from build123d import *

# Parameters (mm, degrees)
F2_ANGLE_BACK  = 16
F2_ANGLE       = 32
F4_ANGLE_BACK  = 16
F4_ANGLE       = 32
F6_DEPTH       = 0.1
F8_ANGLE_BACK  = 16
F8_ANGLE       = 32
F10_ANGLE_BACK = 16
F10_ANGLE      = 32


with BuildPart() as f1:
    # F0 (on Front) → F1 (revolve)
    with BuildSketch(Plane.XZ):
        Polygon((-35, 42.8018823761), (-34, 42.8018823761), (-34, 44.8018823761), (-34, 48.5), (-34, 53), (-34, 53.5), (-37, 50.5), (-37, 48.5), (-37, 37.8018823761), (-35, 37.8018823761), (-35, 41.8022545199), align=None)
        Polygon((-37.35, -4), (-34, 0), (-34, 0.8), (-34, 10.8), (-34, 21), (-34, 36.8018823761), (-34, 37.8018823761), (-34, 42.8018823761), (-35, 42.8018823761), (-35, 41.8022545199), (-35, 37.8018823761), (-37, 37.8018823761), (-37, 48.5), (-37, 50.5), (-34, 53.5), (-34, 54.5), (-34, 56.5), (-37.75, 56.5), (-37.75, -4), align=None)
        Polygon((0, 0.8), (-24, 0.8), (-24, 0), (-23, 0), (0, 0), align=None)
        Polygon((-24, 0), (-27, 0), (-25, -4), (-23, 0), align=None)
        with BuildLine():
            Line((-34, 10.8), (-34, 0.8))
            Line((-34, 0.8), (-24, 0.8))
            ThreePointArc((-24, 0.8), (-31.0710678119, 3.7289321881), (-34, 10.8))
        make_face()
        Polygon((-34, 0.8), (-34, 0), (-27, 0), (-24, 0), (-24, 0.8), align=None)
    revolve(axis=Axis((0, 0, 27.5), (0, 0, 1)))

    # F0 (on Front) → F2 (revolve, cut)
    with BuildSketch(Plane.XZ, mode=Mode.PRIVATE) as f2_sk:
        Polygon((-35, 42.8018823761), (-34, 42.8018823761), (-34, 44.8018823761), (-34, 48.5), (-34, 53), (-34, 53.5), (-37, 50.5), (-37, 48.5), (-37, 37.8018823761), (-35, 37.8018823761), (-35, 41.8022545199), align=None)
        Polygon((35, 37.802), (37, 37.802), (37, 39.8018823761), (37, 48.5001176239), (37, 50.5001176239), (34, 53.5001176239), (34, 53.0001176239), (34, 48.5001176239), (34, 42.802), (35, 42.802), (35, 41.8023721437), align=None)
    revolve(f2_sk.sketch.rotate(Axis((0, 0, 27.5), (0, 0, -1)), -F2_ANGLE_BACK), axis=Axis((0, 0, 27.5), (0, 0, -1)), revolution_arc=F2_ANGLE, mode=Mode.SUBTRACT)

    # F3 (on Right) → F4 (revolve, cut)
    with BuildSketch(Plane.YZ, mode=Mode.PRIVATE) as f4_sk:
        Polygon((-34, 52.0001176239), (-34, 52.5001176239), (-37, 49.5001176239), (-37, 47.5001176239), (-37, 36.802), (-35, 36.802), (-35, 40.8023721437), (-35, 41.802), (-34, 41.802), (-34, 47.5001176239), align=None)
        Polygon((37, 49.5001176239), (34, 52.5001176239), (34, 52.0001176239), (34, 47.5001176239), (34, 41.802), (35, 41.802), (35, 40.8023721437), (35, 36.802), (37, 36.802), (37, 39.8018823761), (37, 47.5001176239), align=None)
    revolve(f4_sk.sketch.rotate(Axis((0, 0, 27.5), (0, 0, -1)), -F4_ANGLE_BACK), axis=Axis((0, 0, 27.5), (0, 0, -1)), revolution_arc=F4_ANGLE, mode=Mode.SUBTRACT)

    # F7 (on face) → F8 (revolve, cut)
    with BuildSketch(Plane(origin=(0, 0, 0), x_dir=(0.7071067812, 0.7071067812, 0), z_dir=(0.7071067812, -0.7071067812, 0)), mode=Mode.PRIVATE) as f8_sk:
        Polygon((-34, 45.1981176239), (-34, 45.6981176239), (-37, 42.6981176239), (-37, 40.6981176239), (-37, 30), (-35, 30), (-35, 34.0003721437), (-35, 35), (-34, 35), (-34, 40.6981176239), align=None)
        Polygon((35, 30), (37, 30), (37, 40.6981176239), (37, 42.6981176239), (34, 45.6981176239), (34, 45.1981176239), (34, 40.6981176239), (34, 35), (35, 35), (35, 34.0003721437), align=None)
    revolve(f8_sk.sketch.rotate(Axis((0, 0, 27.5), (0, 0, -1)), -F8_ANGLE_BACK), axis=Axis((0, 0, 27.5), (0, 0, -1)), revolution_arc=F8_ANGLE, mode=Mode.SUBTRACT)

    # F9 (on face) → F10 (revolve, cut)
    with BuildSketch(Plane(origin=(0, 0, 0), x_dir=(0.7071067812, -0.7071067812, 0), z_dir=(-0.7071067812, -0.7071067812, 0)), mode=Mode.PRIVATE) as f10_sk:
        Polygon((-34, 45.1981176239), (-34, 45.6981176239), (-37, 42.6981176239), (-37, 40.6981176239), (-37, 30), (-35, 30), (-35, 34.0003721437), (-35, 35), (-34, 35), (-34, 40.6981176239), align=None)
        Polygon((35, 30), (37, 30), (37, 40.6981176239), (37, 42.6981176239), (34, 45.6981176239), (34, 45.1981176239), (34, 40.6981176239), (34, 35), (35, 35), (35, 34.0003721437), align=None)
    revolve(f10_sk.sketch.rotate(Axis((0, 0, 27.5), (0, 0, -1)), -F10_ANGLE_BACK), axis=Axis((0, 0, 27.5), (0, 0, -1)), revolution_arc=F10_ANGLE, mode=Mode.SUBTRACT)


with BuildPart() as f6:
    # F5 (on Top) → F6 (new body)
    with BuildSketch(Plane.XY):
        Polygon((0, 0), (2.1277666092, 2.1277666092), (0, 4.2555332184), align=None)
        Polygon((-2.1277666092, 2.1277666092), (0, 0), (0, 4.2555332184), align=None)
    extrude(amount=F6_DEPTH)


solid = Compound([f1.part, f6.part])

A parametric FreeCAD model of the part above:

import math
import FreeCAD as App
import Part
import Sketcher

V = App.Vector
Q = App.Units.Quantity


def add_polygon(sketch, points):
    """Adds a closed chain of lines whose ends are joined by coincident constraints."""
    first, n = sketch.GeometryCount, len(points)
    for a, b in zip(points, points[1:] + points[:1]):
        sketch.addGeometry(Part.LineSegment(App.Vector(*a, 0), App.Vector(*b, 0)), False)
    for i in range(n):
        sketch.addConstraint(Sketcher.Constraint("Coincident", first + i, 2, first + (i + 1) % n, 1))

doc = App.newDocument("Part")
body = doc.addObject("PartDesign::Body", "Body")

sketch1 = body.newObject("Sketcher::SketchObject", "Sketch")
sketch1.AttachmentSupport = (doc.getObject("XZ_Plane"), [""])
sketch1.MapMode = "FlatFace"
sketch1.addGeometry([
    Part.LineSegment(V(-34, 56.5, 0), V(-37.75, 56.5, 0)),
    Part.LineSegment(V(-37.75, 56.5, 0), V(-37.75, -4, 0)),
    Part.LineSegment(V(-37.75, -4, 0), V(-37.35, -4, 0)),
    Part.LineSegment(V(-37.35, -4, 0), V(-34, 0, 0)),
    Part.LineSegment(V(-34, 0, 0), V(-27, 0, 0)),
    Part.LineSegment(V(-27, 0, 0), V(-25, -4, 0)),
    Part.LineSegment(V(-25, -4, 0), V(-23, 0, 0)),
    Part.LineSegment(V(-23, 0, 0), V(0, 0, 0)),
    Part.LineSegment(V(0, 0, 0), V(0, 0.8, 0)),
    Part.LineSegment(V(0, 0.8, 0), V(-24, 0.8, 0)),
    Part.ArcOfCircle(Part.Circle(V(-24, 10.8, 0), V(0, 0, 1), 10), math.radians(180), math.radians(270)),
    Part.LineSegment(V(-34, 10.8, 0), V(-34, 56.5, 0)),
], False)
sketch1.addConstraint([
    Sketcher.Constraint("Coincident", 0, 2, 1, 1),
    Sketcher.Constraint("Coincident", 1, 2, 2, 1),
    Sketcher.Constraint("Coincident", 2, 2, 3, 1),
    Sketcher.Constraint("Coincident", 3, 2, 4, 1),
    Sketcher.Constraint("Coincident", 4, 2, 5, 1),
    Sketcher.Constraint("Coincident", 5, 2, 6, 1),
    Sketcher.Constraint("Coincident", 6, 2, 7, 1),
    Sketcher.Constraint("Coincident", 7, 2, 8, 1),
    Sketcher.Constraint("Coincident", 8, 2, 9, 1),
    Sketcher.Constraint("Tangent", 9, 2, 10, 2),
    Sketcher.Constraint("Tangent", 10, 1, 11, 1),
    Sketcher.Constraint("Coincident", 11, 2, 0, 1),
    Sketcher.Constraint("Horizontal", 0),
    Sketcher.Constraint("Vertical", 1),
    Sketcher.Constraint("Horizontal", 2),
    Sketcher.Constraint("Horizontal", 4),
    Sketcher.Constraint("Horizontal", 7),
    Sketcher.Constraint("Vertical", 8),
    Sketcher.Constraint("Horizontal", 9),
    Sketcher.Constraint("Vertical", 11),
    Sketcher.Constraint("Coincident", 7, 2, -1, 1),
    Sketcher.Constraint("PointOnObject", 3, 2, -1),
    Sketcher.Constraint("Horizontal", 2, 2, 5, 2),
    Sketcher.Constraint("Vertical", 3, 2, 10, 1),
    Sketcher.Constraint("Equal", 5, 6),
    Sketcher.Constraint("Radius", 10, Q("10 mm")),
    Sketcher.Constraint("DistanceX", 4, 1, 4, 2, Q("7 mm")),
    Sketcher.Constraint("DistanceX", 7, 1, 7, 2, Q("23 mm")),
    Sketcher.Constraint("DistanceX", 9, 2, 9, 1, Q("24 mm")),
    Sketcher.Constraint("DistanceX", 2, 1, 2, 2, Q("0.4 mm")),
    Sketcher.Constraint("DistanceY", 1, 2, 1, 1, Q("60.5 mm")),
    Sketcher.Constraint("DistanceY", 8, 1, 8, 2, Q("0.8 mm")),
    Sketcher.Constraint("DistanceY", 11, 1, 11, 2, Q("45.7 mm")),
    Sketcher.Constraint("DistanceX", 0, 2, 0, 1, Q("3.75 mm")),
])
revolution = body.newObject("PartDesign::Revolution", "Revolution")
revolution.Profile = sketch1
revolution.ReferenceAxis = (sketch1, ["V_Axis"])
revolution.Angle = 360

sketch2 = body.newObject("Sketcher::SketchObject", "Sketch001")
sketch2.Placement = App.Placement(V(0, 0, 0), App.Rotation(V(0.961261696, 0.275637356, 0), V(0, 0, 1), V(0.275637356, -0.961261696, 0), "ZXY"))
add_polygon(sketch2, [(-35, 42.8), (-34, 42.8), (-34, 53.5), (-37, 50.5), (-37, 37.8), (-35, 37.8)])
add_polygon(sketch2, [(35, 37.8), (37, 37.8), (37, 50.5), (34, 53.5), (34, 42.8), (35, 42.8)])
sketch2.addConstraint([
    Sketcher.Constraint("Horizontal", 0),
    Sketcher.Constraint("Vertical", 1),
    Sketcher.Constraint("Vertical", 3),
    Sketcher.Constraint("Horizontal", 4),
    Sketcher.Constraint("Vertical", 5),
    Sketcher.Constraint("Horizontal", 6),
    Sketcher.Constraint("Vertical", 7),
    Sketcher.Constraint("Vertical", 9),
    Sketcher.Constraint("Horizontal", 10),
    Sketcher.Constraint("Vertical", 11),
    Sketcher.Constraint("Perpendicular", 2, 8),
    Sketcher.Constraint("Equal", 4, 6),
    Sketcher.Constraint("Equal", 0, 10),
    Sketcher.Constraint("Equal", 3, 7),
    Sketcher.Constraint("Equal", 1, 9),
    Sketcher.Constraint("Equal", 5, 11),
    Sketcher.Constraint("DistanceX", 0, 1, 0, 2, Q("1 mm")),
    Sketcher.Constraint("DistanceX", 4, 1, 4, 2, Q("2 mm")),
    Sketcher.Constraint("DistanceY", 5, 1, 5, 2, Q("5 mm")),
    Sketcher.Constraint("DistanceX", 0, 2, -1, 1, Q("34 mm")),
    Sketcher.Constraint("DistanceX", -1, 1, 6, 2, Q("37 mm")),
    Sketcher.Constraint("DistanceY", -1, 1, 1, 2, Q("53.5 mm")),
    Sketcher.Constraint("DistanceY", -1, 1, 6, 2, Q("37.802 mm")),
    Sketcher.Constraint("DistanceY", 1, 1, 1, 2, Q("10.698118 mm")),
])
groove = body.newObject("PartDesign::Groove", "Groove")
groove.Profile = sketch2
groove.ReferenceAxis = (sketch2, ["V_Axis"])
groove.Angle = 32
groove.Reversed = True

sketch3 = body.newObject("Sketcher::SketchObject", "Sketch002")
sketch3.Placement = App.Placement(V(0, 0, 0), App.Rotation(V(-0.275637356, 0.961261696, 0), V(0, 0, 1), V(0.961261696, 0.275637356, 0), "ZXY"))
add_polygon(sketch3, [(-34, 52.5), (-37, 49.5), (-37, 36.8), (-35, 36.8), (-35, 41.8), (-34, 41.8)])
add_polygon(sketch3, [(37, 49.5), (34, 52.5), (34, 41.8), (35, 41.8), (35, 36.8), (37, 36.8)])
sketch3.addConstraint([
    Sketcher.Constraint("Vertical", 1),
    Sketcher.Constraint("Horizontal", 2),
    Sketcher.Constraint("Vertical", 3),
    Sketcher.Constraint("Horizontal", 4),
    Sketcher.Constraint("Vertical", 5),
    Sketcher.Constraint("Vertical", 7),
    Sketcher.Constraint("Horizontal", 8),
    Sketcher.Constraint("Vertical", 9),
    Sketcher.Constraint("Horizontal", 10),
    Sketcher.Constraint("Vertical", 11),
    Sketcher.Constraint("Symmetric", 5, 2, 6, 2, -2),
    Sketcher.Constraint("Symmetric", 3, 2, 8, 2, -2),
    Sketcher.Constraint("Symmetric", 1, 2, 10, 2, -2),
    Sketcher.Constraint("Perpendicular", 0, 6),
    Sketcher.Constraint("Horizontal", 0, 2, 11, 2),
    Sketcher.Constraint("DistanceX", 2, 1, 2, 2, Q("2 mm")),
    Sketcher.Constraint("DistanceX", 4, 1, 4, 2, Q("1 mm")),
    Sketcher.Constraint("DistanceY", 3, 1, 3, 2, Q("5 mm")),
    Sketcher.Constraint("DistanceX", 0, 2, -1, 1, Q("37 mm")),
    Sketcher.Constraint("DistanceY", -1, 1, 1, 2, Q("36.802 mm")),
    Sketcher.Constraint("DistanceY", 1, 2, 1, 1, Q("12.698118 mm")),
])
groove2 = body.newObject("PartDesign::Groove", "Groove001")
groove2.Profile = sketch3
groove2.ReferenceAxis = (sketch3, ["V_Axis"])
groove2.Angle = 32
groove2.Reversed = True

sketch4 = body.newObject("Sketcher::SketchObject", "Sketch003")
sketch4.Placement = App.Placement(V(0, 0, 0), App.Rotation(V(0.48480962, 0.874619707, 0), V(0, 0, 1), V(0.874619707, -0.48480962, 0), "ZXY"))
add_polygon(sketch4, [(-34, 45.7), (-37, 42.7), (-37, 30), (-35, 30), (-35, 35), (-34, 35)])
add_polygon(sketch4, [(35, 30), (37, 30), (37, 42.7), (34, 45.7), (34, 35), (35, 35)])
sketch4.addConstraint([
    Sketcher.Constraint("Vertical", 1),
    Sketcher.Constraint("Horizontal", 2),
    Sketcher.Constraint("Vertical", 3),
    Sketcher.Constraint("Horizontal", 4),
    Sketcher.Constraint("Vertical", 5),
    Sketcher.Constraint("Horizontal", 6),
    Sketcher.Constraint("Vertical", 7),
    Sketcher.Constraint("Vertical", 9),
    Sketcher.Constraint("Horizontal", 10),
    Sketcher.Constraint("Vertical", 11),
    Sketcher.Constraint("Symmetric", 1, 2, 6, 2, -2),
    Sketcher.Constraint("Symmetric", 5, 2, 8, 2, -2),
    Sketcher.Constraint("Symmetric", 3, 2, 10, 2, -2),
    Sketcher.Constraint("Perpendicular", 0, 8),
    Sketcher.Constraint("Horizontal", 0, 2, 7, 2),
    Sketcher.Constraint("DistanceX", 2, 1, 2, 2, Q("2 mm")),
    Sketcher.Constraint("DistanceX", 4, 1, 4, 2, Q("1 mm")),
    Sketcher.Constraint("DistanceY", 3, 1, 3, 2, Q("5 mm")),
    Sketcher.Constraint("DistanceX", 0, 2, -1, 1, Q("37 mm")),
    Sketcher.Constraint("DistanceY", -1, 1, 1, 2, Q("30 mm")),
    Sketcher.Constraint("DistanceY", 1, 2, 1, 1, Q("12.698118 mm")),
])
groove3 = body.newObject("PartDesign::Groove", "Groove002")
groove3.Profile = sketch4
groove3.ReferenceAxis = (sketch4, ["V_Axis"])
groove3.Angle = 32
groove3.Reversed = True

sketch5 = body.newObject("Sketcher::SketchObject", "Sketch004")
sketch5.Placement = App.Placement(V(0, 0, 0), App.Rotation(V(0.874619707, -0.48480962, 0), V(0, 0, 1), V(-0.48480962, -0.874619707, 0), "ZXY"))
add_polygon(sketch5, [(-34, 45.7), (-37, 42.7), (-37, 30), (-35, 30), (-35, 35), (-34, 35)])
add_polygon(sketch5, [(35, 30), (37, 30), (37, 42.7), (34, 45.7), (34, 35), (35, 35)])
sketch5.addConstraint([
    Sketcher.Constraint("Vertical", 1),
    Sketcher.Constraint("Horizontal", 2),
    Sketcher.Constraint("Vertical", 3),
    Sketcher.Constraint("Horizontal", 4),
    Sketcher.Constraint("Vertical", 5),
    Sketcher.Constraint("Horizontal", 6),
    Sketcher.Constraint("Vertical", 7),
    Sketcher.Constraint("Vertical", 9),
    Sketcher.Constraint("Horizontal", 10),
    Sketcher.Constraint("Vertical", 11),
    Sketcher.Constraint("Symmetric", 1, 2, 6, 2, -2),
    Sketcher.Constraint("Symmetric", 5, 2, 8, 2, -2),
    Sketcher.Constraint("Symmetric", 3, 2, 10, 2, -2),
    Sketcher.Constraint("Perpendicular", 0, 8),
    Sketcher.Constraint("Horizontal", 0, 2, 7, 2),
    Sketcher.Constraint("DistanceX", 2, 1, 2, 2, Q("2 mm")),
    Sketcher.Constraint("DistanceX", 4, 1, 4, 2, Q("1 mm")),
    Sketcher.Constraint("DistanceY", 3, 1, 3, 2, Q("5 mm")),
    Sketcher.Constraint("DistanceX", 0, 2, -1, 1, Q("37 mm")),
    Sketcher.Constraint("DistanceY", -1, 1, 1, 2, Q("30 mm")),
    Sketcher.Constraint("DistanceY", 1, 2, 1, 1, Q("12.698118 mm")),
])
groove4 = body.newObject("PartDesign::Groove", "Groove003")
groove4.Profile = sketch5
groove4.ReferenceAxis = (sketch5, ["V_Axis"])
groove4.Angle = 32
groove4.Reversed = True
body2 = doc.addObject("PartDesign::Body", "Body001")

sketch6 = body2.newObject("Sketcher::SketchObject", "Sketch005")
sketch6.AttachmentSupport = (doc.getObject("XY_Plane001"), [""])
sketch6.MapMode = "FlatFace"
add_polygon(sketch6, [(0, 0), (2.1, 2.1), (0, 4.3), (-2.1, 2.1)])
sketch6.addConstraint([
    Sketcher.Constraint("Coincident", 3, 2, -1, 1),
    Sketcher.Constraint("Symmetric", 0, 2, 2, 2, -2),
    Sketcher.Constraint("PointOnObject", 1, 2, -2),
    Sketcher.Constraint("Perpendicular", 0, 1),
    Sketcher.Constraint("Perpendicular", 1, 2),
    Sketcher.Constraint("Distance", 0, Q("3.009116 mm")),
])
pad1 = body2.newObject("PartDesign::Pad", "Pad")
pad1.Profile = sketch6
pad1.Length = 0.1

doc.recompute()
